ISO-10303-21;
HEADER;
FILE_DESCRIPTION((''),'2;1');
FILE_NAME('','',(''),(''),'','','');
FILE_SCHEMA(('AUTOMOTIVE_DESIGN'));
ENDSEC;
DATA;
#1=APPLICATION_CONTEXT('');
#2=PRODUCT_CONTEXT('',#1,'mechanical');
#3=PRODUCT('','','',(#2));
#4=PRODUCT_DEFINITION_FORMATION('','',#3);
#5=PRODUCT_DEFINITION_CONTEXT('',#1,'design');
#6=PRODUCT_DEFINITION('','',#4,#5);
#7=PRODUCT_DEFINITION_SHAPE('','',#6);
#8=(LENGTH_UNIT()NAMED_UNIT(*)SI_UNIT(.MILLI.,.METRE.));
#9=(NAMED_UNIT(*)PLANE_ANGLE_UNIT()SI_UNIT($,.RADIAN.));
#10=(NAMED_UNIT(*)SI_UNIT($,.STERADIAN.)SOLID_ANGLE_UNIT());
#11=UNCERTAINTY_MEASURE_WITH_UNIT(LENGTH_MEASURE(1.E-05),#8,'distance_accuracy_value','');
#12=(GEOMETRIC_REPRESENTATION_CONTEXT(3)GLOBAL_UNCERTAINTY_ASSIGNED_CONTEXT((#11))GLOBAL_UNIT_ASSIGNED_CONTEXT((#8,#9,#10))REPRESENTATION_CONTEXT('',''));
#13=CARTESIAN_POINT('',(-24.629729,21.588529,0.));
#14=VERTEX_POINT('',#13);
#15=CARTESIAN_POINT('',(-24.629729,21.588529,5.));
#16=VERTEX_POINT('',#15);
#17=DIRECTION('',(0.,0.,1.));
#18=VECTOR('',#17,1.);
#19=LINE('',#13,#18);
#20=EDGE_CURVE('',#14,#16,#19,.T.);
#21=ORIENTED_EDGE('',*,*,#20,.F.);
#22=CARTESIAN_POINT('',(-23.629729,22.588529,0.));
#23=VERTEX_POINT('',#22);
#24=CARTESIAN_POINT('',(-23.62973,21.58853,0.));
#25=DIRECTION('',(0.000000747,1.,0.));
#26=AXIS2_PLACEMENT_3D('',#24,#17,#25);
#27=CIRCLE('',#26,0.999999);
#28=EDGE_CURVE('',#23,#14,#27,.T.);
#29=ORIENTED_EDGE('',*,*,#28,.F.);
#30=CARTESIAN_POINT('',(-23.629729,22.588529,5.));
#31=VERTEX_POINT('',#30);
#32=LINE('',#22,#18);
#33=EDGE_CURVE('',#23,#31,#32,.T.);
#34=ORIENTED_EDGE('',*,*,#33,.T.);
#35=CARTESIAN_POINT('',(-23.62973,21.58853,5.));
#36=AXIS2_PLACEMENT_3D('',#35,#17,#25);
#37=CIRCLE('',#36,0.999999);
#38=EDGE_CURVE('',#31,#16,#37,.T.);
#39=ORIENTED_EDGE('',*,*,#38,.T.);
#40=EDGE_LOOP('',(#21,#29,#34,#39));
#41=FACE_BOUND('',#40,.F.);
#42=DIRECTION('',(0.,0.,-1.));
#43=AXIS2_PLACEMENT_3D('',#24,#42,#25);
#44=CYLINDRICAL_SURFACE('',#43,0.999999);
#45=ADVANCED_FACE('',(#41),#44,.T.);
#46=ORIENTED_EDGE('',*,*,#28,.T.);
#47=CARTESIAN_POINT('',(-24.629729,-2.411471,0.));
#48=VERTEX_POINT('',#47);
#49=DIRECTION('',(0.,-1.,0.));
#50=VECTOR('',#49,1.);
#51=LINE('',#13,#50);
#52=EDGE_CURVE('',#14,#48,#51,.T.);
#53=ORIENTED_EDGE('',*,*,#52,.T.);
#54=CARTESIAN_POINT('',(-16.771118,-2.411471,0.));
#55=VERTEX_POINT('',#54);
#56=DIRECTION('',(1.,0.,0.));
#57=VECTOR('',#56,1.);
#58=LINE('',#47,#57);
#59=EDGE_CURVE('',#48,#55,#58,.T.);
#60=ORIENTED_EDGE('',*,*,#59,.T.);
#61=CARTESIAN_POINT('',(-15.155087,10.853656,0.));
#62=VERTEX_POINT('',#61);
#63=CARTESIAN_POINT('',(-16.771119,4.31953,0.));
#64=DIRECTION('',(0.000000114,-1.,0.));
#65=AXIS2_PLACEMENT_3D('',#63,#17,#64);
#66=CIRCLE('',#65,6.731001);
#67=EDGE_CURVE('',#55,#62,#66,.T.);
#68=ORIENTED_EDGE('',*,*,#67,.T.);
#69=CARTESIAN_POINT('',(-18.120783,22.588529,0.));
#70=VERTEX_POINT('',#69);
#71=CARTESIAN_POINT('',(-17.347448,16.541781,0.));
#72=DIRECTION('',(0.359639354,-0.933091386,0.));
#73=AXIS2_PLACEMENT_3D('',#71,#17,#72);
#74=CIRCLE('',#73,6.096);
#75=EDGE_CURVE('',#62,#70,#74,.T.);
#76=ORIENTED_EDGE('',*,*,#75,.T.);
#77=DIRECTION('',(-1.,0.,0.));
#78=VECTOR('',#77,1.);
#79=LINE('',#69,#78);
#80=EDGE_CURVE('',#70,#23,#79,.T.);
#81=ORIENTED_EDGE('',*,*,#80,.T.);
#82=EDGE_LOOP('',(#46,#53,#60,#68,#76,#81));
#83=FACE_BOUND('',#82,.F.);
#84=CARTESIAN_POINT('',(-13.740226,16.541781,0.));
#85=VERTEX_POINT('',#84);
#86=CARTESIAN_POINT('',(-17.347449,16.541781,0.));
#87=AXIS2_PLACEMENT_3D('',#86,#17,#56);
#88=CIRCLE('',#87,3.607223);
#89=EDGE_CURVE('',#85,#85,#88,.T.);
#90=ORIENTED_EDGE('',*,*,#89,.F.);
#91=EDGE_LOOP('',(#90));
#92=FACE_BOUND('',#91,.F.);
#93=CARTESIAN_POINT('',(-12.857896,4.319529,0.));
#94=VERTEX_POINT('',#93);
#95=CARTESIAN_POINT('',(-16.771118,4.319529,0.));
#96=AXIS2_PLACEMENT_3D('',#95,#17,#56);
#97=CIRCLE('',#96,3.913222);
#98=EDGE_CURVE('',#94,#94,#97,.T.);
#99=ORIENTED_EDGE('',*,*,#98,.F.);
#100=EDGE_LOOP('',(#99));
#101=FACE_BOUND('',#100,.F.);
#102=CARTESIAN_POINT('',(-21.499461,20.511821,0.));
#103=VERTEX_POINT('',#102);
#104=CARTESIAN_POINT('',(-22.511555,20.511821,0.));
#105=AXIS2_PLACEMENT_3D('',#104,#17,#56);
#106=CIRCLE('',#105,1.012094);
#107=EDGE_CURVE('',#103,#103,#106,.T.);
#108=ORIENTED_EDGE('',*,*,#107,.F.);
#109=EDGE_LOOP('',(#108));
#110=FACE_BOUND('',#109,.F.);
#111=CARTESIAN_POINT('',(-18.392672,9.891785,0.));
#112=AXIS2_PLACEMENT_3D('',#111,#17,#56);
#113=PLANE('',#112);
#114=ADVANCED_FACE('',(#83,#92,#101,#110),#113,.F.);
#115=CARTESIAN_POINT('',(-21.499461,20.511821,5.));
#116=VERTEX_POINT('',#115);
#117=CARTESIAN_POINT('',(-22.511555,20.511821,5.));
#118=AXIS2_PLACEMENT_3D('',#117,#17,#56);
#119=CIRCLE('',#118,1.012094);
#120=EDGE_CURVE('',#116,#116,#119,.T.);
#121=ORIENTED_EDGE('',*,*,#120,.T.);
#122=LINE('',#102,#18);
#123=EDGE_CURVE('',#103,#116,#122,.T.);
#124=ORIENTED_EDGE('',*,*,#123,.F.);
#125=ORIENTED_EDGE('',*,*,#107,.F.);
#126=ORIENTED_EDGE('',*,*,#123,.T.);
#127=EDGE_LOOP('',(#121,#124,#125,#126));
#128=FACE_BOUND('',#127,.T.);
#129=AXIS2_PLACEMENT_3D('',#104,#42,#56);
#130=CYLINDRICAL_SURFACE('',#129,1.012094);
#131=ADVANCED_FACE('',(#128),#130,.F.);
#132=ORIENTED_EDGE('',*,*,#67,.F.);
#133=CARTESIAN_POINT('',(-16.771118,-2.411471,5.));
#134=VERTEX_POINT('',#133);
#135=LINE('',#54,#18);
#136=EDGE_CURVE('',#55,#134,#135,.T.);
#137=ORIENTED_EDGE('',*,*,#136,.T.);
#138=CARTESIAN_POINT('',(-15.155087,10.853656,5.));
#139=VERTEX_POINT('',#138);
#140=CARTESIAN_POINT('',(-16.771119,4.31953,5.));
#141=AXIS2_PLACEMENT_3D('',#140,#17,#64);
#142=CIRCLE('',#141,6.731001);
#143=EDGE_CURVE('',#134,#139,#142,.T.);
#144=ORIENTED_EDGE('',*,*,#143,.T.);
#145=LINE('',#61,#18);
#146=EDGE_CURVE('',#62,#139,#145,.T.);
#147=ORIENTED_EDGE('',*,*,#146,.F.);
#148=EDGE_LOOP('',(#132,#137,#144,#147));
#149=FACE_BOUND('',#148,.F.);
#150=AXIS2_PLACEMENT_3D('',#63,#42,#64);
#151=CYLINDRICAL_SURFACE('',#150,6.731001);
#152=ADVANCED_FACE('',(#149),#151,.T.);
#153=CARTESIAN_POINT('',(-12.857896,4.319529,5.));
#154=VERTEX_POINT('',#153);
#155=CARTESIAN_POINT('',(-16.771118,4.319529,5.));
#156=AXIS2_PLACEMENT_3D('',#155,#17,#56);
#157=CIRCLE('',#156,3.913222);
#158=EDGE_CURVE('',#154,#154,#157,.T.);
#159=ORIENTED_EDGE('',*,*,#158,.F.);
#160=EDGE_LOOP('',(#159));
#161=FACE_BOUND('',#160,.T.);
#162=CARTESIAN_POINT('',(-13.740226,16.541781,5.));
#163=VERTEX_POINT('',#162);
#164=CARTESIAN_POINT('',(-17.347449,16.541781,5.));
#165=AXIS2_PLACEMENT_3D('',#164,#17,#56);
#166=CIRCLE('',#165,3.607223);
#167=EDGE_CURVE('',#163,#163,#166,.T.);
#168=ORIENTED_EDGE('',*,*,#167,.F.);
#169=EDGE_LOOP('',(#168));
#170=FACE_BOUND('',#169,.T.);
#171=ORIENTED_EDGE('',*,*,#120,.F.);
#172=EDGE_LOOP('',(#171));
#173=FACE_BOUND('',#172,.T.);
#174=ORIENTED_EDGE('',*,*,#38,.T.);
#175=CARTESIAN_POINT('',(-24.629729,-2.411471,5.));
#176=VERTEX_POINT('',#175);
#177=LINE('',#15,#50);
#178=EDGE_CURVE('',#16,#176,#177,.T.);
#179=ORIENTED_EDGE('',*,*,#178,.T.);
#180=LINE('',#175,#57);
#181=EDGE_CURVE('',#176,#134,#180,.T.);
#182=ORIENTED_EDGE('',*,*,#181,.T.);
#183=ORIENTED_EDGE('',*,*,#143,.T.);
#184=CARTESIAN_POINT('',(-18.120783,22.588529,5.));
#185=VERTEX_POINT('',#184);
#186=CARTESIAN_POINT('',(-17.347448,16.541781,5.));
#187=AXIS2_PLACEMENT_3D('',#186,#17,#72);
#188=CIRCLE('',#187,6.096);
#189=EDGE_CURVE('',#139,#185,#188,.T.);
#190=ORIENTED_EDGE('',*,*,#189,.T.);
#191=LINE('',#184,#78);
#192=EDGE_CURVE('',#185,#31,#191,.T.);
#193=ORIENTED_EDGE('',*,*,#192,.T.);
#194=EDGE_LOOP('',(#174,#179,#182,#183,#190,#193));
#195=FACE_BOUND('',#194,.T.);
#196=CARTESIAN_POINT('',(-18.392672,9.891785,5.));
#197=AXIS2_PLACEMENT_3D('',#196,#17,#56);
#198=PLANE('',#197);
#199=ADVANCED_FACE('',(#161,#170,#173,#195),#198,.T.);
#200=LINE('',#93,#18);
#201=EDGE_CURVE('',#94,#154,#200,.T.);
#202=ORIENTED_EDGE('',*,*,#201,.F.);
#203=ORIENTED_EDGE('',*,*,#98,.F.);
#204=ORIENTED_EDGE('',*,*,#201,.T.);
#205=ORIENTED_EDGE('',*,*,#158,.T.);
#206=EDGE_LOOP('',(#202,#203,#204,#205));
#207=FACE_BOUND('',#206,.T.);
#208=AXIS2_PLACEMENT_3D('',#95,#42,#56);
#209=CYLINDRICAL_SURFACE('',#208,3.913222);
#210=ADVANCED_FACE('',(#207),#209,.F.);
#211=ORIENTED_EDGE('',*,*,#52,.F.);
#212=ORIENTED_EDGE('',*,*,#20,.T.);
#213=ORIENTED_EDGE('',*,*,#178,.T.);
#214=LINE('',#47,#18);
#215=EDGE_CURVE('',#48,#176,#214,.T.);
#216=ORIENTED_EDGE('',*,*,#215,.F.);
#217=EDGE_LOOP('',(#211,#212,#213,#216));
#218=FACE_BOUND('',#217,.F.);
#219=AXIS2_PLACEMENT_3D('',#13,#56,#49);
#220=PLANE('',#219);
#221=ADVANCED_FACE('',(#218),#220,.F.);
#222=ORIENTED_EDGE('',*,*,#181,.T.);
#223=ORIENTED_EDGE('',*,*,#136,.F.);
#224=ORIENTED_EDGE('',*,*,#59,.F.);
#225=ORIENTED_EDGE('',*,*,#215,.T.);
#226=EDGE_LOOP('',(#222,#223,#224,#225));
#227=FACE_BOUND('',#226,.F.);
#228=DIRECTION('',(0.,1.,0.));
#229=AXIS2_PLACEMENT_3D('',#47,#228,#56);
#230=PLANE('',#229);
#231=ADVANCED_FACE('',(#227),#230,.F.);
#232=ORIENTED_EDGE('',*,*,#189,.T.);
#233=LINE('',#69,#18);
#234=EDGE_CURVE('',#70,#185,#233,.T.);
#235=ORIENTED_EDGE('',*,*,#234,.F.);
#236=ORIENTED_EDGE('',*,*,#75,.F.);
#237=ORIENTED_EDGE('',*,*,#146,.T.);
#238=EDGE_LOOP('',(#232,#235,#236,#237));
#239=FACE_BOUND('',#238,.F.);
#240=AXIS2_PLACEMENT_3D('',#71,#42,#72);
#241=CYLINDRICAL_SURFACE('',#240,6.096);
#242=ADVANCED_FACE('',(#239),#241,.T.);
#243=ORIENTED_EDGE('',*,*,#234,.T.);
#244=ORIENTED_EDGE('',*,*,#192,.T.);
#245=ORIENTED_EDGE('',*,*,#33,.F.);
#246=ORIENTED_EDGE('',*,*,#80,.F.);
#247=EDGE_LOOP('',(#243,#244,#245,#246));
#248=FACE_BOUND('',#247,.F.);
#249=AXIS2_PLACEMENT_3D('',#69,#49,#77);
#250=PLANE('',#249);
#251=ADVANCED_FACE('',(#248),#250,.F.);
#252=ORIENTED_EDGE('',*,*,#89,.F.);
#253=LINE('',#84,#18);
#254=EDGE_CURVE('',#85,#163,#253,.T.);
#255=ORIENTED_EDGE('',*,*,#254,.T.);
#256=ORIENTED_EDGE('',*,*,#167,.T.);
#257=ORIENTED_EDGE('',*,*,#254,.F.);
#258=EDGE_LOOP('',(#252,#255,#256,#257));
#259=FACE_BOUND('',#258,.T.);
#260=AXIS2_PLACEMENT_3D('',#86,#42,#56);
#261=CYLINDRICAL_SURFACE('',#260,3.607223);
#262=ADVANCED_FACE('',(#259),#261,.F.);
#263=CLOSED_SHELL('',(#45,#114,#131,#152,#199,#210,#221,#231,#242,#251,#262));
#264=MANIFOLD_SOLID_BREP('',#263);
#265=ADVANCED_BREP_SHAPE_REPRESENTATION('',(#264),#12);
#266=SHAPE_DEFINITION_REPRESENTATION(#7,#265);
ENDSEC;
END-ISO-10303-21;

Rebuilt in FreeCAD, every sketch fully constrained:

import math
import FreeCAD as App
import Part
import Sketcher

doc = App.newDocument("Part")
params = doc.addObject("Spreadsheet::Sheet", "Params")
for row, (alias, value) in enumerate([
    ("sketch1_radius", "0.999999 mm"),
    ("sketch1_height", "24 mm"),
    ("pad1_length", "5 mm"),
], start=1):
    params.set(f"A{row}", alias)
    params.set(f"B{row}", "=" + value)
    params.setAlias(f"B{row}", alias)

body = doc.addObject("PartDesign::Body", "Body")

sketch1 = body.newObject("Sketcher::SketchObject", "Sketch")
sketch1.AttachmentSupport = (doc.getObject("XY_Plane"), [""])
sketch1.MapMode = "FlatFace"
sketch1.addGeometry([
    Part.ArcOfCircle(Part.Circle(App.Vector(-23.6, 21.6, 0), App.Vector(0, 0, 1), 1), math.radians(90), math.radians(180)),
    Part.LineSegment(App.Vector(-24.6, 21.6, 0), App.Vector(-24.6, -2.4, 0)),
    Part.LineSegment(App.Vector(-24.6, -2.4, 0), App.Vector(-16.8, -2.4, 0)),
    Part.ArcOfCircle(Part.Circle(App.Vector(-16.8, 4.3, 0), App.Vector(0, 0, 1), 6.7), math.radians(-90), math.radians(76)),
    Part.ArcOfCircle(Part.Circle(App.Vector(-17.3, 16.5, 0), App.Vector(0, 0, 1), 6.1), math.radians(-69), math.radians(97)),
    Part.LineSegment(App.Vector(-18.1, 22.6, 0), App.Vector(-23.6, 22.6, 0)),
    Part.Circle(App.Vector(-16.8, 4.3, 0), App.Vector(0, 0, 1), 3.9),
    Part.Circle(App.Vector(-22.5, 20.5, 0), App.Vector(0, 0, 1), 1),
    Part.Circle(App.Vector(-17.3, 16.5, 0), App.Vector(0, 0, 1), 3.6),
], False)
sketch1.addConstraint([
    Sketcher.Constraint("Tangent", 0, 2, 1, 1),
    Sketcher.Constraint("Coincident", 1, 2, 2, 1),
    Sketcher.Constraint("Tangent", 2, 2, 3, 1),
    Sketcher.Constraint("Coincident", 3, 2, 4, 1),
    Sketcher.Constraint("Coincident", 4, 2, 5, 1),
    Sketcher.Constraint("Tangent", 5, 2, 0, 1),
    Sketcher.Constraint("Vertical", 1),
    Sketcher.Constraint("Horizontal", 2),
    Sketcher.Constraint("Horizontal", 5),
    Sketcher.Constraint("Coincident", 6, 3, 3, 3),
    Sketcher.Constraint("Coincident", 8, 3, 4, 3),
    Sketcher.Constraint("Radius", 0, 0.999999),
    Sketcher.Constraint("DistanceY", 1, 2, 1, 1, 24.0),
    Sketcher.Constraint("Radius", 3, 6.731001),
    Sketcher.Constraint("Radius", 4, 6.096),
    Sketcher.Constraint("Diameter", 7, 2.024188),
    Sketcher.Constraint("Diameter", 6, 7.826444),
    Sketcher.Constraint("Diameter", 8, 7.214446),
    Sketcher.Constraint("DistanceX", 2, 1, 2, 2, 7.858611),
    Sketcher.Constraint("DistanceX", 5, 2, 5, 1, 5.508946),
    Sketcher.Constraint("DistanceX", 0, 3, -1, 1, 23.62973),
    Sketcher.Constraint("DistanceY", -1, 1, 0, 3, 21.58853),
    Sketcher.Constraint("DistanceX", 4, 3, -1, 1, 17.347448),
    Sketcher.Constraint("DistanceY", -1, 1, 7, 3, 20.511821),
    Sketcher.Constraint("DistanceX", 7, 3, 3, 2, 7.356468),
])
sketch1.setExpression("Constraints[11]", "Params.sketch1_radius")
sketch1.setExpression("Constraints[12]", "Params.sketch1_height")
pad1 = body.newObject("PartDesign::Pad", "Pad")
pad1.Profile = sketch1
pad1.setExpression("Length", "Params.pad1_length")

doc.recompute()
